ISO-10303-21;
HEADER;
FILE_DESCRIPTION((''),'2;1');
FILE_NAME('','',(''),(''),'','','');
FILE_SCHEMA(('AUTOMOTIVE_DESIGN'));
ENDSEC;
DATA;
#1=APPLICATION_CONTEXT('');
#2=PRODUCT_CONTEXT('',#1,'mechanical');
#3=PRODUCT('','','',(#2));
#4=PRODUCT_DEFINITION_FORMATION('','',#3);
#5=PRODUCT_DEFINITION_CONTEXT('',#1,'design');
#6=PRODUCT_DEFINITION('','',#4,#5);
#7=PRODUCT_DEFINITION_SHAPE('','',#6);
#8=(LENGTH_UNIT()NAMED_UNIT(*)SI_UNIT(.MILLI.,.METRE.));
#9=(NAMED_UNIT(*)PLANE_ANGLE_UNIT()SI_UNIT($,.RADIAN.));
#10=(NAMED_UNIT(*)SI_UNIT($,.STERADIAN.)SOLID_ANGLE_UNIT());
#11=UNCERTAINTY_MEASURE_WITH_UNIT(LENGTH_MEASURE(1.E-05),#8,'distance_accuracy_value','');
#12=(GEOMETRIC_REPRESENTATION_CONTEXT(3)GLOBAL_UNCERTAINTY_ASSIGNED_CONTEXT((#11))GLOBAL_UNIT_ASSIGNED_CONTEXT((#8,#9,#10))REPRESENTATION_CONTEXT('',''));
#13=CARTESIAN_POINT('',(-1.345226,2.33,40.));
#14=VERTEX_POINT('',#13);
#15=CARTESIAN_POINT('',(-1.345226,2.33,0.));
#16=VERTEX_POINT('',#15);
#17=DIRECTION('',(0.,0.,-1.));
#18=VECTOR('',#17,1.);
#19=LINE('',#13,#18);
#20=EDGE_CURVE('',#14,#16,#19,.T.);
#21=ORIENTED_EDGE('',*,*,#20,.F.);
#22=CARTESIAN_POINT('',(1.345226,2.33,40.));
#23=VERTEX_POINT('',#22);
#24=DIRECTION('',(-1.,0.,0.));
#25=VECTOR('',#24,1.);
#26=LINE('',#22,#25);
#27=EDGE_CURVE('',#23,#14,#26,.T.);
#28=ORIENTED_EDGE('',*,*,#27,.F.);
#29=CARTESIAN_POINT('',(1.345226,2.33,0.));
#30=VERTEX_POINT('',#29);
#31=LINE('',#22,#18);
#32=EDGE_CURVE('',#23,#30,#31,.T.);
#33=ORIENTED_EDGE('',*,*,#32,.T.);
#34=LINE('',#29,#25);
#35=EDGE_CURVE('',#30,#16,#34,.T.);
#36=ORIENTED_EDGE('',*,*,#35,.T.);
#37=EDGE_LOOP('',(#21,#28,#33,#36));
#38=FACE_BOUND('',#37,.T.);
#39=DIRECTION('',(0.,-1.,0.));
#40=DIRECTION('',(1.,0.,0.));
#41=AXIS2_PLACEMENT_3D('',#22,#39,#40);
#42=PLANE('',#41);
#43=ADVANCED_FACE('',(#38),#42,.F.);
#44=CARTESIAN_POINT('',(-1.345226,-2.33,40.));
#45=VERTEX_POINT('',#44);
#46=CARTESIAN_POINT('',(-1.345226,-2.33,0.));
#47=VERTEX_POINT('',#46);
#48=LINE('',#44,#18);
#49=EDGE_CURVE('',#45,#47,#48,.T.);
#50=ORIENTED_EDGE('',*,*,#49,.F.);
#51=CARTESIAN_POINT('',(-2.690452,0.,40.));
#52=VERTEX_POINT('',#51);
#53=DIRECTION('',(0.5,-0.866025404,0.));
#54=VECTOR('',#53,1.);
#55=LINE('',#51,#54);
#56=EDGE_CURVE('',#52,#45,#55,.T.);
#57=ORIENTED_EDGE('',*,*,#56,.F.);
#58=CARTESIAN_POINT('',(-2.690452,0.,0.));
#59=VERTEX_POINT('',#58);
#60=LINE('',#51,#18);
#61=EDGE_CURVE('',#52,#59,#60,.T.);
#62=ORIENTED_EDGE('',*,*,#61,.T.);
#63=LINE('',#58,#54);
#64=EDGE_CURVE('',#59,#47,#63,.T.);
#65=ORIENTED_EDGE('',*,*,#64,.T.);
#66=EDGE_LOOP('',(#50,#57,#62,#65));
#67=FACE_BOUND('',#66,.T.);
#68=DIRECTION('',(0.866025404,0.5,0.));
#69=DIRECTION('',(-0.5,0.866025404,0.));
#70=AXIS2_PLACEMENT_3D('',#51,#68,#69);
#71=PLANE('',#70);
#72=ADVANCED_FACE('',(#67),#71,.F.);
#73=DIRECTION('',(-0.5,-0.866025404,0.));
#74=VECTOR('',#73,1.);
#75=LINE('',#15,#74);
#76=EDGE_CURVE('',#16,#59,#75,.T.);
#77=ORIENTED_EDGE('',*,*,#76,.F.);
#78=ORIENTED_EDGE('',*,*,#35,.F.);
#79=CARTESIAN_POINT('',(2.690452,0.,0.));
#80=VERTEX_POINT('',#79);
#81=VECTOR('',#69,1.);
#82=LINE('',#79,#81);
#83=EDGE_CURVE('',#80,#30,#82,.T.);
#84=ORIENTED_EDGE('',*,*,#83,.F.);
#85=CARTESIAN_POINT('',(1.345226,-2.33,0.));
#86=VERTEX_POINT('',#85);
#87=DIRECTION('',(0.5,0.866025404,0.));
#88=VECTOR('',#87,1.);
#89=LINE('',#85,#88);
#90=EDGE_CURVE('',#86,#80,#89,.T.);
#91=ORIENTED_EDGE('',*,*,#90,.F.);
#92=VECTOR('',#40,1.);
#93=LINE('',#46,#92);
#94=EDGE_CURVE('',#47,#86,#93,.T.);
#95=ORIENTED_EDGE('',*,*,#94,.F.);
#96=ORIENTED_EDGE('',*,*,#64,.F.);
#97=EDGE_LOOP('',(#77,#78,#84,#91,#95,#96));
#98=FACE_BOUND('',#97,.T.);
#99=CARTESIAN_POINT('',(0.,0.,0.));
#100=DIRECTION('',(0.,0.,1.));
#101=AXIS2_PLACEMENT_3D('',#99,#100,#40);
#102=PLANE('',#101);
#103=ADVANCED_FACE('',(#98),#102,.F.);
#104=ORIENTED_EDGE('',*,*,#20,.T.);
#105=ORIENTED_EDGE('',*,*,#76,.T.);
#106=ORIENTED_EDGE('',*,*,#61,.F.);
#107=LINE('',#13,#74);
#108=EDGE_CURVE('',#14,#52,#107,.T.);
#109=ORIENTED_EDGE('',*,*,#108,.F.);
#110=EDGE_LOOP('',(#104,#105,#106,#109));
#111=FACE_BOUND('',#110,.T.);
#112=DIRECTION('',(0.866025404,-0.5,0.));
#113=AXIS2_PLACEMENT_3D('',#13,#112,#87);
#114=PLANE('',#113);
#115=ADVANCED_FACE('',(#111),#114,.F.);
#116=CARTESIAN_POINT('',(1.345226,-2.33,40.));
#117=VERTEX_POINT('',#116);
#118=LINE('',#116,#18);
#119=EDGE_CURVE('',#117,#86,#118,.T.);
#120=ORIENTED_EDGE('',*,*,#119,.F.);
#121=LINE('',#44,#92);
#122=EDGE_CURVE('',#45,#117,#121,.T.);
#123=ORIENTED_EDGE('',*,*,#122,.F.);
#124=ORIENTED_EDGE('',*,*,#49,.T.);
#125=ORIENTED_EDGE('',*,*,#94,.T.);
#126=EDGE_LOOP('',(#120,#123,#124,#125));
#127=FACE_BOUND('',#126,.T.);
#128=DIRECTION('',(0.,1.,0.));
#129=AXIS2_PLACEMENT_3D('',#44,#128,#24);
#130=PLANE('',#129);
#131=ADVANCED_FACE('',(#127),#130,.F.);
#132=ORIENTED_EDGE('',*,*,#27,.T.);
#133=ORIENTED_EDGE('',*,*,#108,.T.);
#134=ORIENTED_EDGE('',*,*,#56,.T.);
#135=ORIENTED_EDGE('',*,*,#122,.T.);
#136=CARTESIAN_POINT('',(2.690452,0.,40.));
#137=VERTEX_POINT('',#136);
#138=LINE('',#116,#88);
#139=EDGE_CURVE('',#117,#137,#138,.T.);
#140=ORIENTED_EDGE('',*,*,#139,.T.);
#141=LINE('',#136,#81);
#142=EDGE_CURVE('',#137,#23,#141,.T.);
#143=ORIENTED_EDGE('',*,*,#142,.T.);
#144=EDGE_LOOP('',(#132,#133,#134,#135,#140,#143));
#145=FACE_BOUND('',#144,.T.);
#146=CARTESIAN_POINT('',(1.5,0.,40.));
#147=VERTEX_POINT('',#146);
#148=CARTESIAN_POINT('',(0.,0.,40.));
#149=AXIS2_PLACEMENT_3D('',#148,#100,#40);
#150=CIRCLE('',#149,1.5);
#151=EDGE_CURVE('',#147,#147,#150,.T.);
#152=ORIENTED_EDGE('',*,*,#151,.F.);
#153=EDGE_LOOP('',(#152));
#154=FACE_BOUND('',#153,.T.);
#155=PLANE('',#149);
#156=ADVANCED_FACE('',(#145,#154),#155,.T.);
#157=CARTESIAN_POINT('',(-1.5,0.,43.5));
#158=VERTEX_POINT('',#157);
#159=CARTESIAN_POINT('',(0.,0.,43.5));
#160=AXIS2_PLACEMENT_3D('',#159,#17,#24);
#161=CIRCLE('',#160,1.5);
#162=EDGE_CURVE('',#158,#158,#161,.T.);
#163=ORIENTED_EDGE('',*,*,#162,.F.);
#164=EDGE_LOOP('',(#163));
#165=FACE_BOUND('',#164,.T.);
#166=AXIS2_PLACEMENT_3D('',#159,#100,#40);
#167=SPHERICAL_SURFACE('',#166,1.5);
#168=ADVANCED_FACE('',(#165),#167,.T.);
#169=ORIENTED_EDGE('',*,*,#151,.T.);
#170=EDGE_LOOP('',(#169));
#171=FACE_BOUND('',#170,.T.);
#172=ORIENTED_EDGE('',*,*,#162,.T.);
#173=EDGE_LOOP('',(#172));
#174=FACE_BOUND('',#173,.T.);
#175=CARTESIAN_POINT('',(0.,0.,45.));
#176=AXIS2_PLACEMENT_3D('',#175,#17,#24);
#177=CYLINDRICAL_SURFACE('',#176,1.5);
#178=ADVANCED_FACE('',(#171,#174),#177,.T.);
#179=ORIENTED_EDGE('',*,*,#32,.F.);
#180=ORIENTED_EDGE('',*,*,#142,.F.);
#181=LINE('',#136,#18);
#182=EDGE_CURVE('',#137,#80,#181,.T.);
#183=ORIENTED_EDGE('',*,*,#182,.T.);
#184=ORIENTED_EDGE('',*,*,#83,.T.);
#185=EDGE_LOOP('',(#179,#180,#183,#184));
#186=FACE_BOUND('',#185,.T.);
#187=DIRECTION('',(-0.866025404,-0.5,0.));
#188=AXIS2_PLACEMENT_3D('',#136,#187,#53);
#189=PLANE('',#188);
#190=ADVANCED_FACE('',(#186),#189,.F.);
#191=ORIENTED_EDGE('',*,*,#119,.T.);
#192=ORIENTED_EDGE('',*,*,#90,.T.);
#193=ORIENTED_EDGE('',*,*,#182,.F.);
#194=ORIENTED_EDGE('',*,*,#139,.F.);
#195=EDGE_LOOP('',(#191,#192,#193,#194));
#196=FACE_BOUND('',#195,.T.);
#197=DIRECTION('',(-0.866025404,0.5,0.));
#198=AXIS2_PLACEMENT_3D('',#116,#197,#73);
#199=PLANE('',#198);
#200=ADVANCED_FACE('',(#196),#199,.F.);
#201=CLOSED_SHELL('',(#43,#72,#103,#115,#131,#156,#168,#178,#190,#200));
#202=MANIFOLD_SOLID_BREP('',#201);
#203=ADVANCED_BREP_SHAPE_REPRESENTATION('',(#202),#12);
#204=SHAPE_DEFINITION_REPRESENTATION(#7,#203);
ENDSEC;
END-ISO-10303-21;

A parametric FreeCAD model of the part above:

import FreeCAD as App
import Part
import Sketcher
Q = App.Units.Quantity


def edges_at(feature, points):
    """Names of the edges that pass closest to the given points."""
    edges = feature.Shape.Edges
    near = lambda p: min(range(len(edges)), key=lambda i: edges[i].distToShape(Part.Vertex(*p))[0])
    return sorted({f"Edge{near(p) + 1}" for p in points})

doc = App.newDocument("Part")
body = doc.addObject("PartDesign::Body", "Body")

sketch1 = body.newObject("Sketcher::SketchObject", "Sketch")
sketch1.AttachmentSupport = (doc.getObject("XY_Plane"), [""])
sketch1.MapMode = "FlatFace"
sketch1.addGeometry([
    Part.LineSegment(App.Vector(2.690452, 0, 0), App.Vector(1.345226, 2.33, 0)),
    Part.LineSegment(App.Vector(1.345226, 2.33, 0), App.Vector(-1.345226, 2.33, 0)),
    Part.LineSegment(App.Vector(-1.345226, 2.33, 0), App.Vector(-2.690452, 0, 0)),
    Part.LineSegment(App.Vector(-2.690452, 0, 0), App.Vector(-1.345226, -2.33, 0)),
    Part.LineSegment(App.Vector(-1.345226, -2.33, 0), App.Vector(1.345226, -2.33, 0)),
    Part.LineSegment(App.Vector(1.345226, -2.33, 0), App.Vector(2.690452, 0, 0)),
], False)
sketch1.addConstraint([
    Sketcher.Constraint("Coincident", 0, 2, 1, 1),
    Sketcher.Constraint("Coincident", 1, 2, 2, 1),
    Sketcher.Constraint("Coincident", 2, 2, 3, 1),
    Sketcher.Constraint("Coincident", 3, 2, 4, 1),
    Sketcher.Constraint("Coincident", 4, 2, 5, 1),
    Sketcher.Constraint("Coincident", 5, 2, 0, 1),
    Sketcher.Constraint("Horizontal", 1),
    Sketcher.Constraint("Horizontal", 4),
    Sketcher.Constraint("Symmetric", 0, 2, 3, 2, -1, 1),
    Sketcher.Constraint("Symmetric", 2, 2, 5, 2, -1, 1),
    Sketcher.Constraint("PointOnObject", 2, 2, -1),
    Sketcher.Constraint("Parallel", 2, 5),
    Sketcher.Constraint("Vertical", 1, 2, 3, 2),
    Sketcher.Constraint("Angle", 0, Q("120 deg")),
    Sketcher.Constraint("DistanceY", -1, 1, 0, 2, Q("2.33 mm")),
    Sketcher.Constraint("DistanceX", 1, 2, 1, 1, Q("2.690452 mm")),
])
pad1 = body.newObject("PartDesign::Pad", "Pad")
pad1.Profile = sketch1
pad1.Length = 40

sketch2 = body.newObject("Sketcher::SketchObject", "Sketch001")
sketch2.AttachmentSupport = (doc.getObject("XY_Plane"), [""])
sketch2.MapMode = "FlatFace"
sketch2.AttachmentOffset = App.Placement(App.Vector(0, 0, 40), App.Rotation())
sketch2.addGeometry(Part.Circle(App.Vector(0, 0, 0), App.Vector(0, 0, 1), 1.5), False)
sketch2.addConstraint([
    Sketcher.Constraint("Coincident", 0, 3, -1, 1),
    Sketcher.Constraint("Diameter", 0, Q("3 mm")),
])
pad2 = body.newObject("PartDesign::Pad", "Pad001")
pad2.Profile = sketch2
pad2.Length = 5
doc.recompute()

fillet = body.newObject("PartDesign::Fillet", "Fillet")
fillet.Base = (pad2, edges_at(pad2, [(-1.5, 0, 45)]))
fillet.Radius = 1.5

doc.recompute()
